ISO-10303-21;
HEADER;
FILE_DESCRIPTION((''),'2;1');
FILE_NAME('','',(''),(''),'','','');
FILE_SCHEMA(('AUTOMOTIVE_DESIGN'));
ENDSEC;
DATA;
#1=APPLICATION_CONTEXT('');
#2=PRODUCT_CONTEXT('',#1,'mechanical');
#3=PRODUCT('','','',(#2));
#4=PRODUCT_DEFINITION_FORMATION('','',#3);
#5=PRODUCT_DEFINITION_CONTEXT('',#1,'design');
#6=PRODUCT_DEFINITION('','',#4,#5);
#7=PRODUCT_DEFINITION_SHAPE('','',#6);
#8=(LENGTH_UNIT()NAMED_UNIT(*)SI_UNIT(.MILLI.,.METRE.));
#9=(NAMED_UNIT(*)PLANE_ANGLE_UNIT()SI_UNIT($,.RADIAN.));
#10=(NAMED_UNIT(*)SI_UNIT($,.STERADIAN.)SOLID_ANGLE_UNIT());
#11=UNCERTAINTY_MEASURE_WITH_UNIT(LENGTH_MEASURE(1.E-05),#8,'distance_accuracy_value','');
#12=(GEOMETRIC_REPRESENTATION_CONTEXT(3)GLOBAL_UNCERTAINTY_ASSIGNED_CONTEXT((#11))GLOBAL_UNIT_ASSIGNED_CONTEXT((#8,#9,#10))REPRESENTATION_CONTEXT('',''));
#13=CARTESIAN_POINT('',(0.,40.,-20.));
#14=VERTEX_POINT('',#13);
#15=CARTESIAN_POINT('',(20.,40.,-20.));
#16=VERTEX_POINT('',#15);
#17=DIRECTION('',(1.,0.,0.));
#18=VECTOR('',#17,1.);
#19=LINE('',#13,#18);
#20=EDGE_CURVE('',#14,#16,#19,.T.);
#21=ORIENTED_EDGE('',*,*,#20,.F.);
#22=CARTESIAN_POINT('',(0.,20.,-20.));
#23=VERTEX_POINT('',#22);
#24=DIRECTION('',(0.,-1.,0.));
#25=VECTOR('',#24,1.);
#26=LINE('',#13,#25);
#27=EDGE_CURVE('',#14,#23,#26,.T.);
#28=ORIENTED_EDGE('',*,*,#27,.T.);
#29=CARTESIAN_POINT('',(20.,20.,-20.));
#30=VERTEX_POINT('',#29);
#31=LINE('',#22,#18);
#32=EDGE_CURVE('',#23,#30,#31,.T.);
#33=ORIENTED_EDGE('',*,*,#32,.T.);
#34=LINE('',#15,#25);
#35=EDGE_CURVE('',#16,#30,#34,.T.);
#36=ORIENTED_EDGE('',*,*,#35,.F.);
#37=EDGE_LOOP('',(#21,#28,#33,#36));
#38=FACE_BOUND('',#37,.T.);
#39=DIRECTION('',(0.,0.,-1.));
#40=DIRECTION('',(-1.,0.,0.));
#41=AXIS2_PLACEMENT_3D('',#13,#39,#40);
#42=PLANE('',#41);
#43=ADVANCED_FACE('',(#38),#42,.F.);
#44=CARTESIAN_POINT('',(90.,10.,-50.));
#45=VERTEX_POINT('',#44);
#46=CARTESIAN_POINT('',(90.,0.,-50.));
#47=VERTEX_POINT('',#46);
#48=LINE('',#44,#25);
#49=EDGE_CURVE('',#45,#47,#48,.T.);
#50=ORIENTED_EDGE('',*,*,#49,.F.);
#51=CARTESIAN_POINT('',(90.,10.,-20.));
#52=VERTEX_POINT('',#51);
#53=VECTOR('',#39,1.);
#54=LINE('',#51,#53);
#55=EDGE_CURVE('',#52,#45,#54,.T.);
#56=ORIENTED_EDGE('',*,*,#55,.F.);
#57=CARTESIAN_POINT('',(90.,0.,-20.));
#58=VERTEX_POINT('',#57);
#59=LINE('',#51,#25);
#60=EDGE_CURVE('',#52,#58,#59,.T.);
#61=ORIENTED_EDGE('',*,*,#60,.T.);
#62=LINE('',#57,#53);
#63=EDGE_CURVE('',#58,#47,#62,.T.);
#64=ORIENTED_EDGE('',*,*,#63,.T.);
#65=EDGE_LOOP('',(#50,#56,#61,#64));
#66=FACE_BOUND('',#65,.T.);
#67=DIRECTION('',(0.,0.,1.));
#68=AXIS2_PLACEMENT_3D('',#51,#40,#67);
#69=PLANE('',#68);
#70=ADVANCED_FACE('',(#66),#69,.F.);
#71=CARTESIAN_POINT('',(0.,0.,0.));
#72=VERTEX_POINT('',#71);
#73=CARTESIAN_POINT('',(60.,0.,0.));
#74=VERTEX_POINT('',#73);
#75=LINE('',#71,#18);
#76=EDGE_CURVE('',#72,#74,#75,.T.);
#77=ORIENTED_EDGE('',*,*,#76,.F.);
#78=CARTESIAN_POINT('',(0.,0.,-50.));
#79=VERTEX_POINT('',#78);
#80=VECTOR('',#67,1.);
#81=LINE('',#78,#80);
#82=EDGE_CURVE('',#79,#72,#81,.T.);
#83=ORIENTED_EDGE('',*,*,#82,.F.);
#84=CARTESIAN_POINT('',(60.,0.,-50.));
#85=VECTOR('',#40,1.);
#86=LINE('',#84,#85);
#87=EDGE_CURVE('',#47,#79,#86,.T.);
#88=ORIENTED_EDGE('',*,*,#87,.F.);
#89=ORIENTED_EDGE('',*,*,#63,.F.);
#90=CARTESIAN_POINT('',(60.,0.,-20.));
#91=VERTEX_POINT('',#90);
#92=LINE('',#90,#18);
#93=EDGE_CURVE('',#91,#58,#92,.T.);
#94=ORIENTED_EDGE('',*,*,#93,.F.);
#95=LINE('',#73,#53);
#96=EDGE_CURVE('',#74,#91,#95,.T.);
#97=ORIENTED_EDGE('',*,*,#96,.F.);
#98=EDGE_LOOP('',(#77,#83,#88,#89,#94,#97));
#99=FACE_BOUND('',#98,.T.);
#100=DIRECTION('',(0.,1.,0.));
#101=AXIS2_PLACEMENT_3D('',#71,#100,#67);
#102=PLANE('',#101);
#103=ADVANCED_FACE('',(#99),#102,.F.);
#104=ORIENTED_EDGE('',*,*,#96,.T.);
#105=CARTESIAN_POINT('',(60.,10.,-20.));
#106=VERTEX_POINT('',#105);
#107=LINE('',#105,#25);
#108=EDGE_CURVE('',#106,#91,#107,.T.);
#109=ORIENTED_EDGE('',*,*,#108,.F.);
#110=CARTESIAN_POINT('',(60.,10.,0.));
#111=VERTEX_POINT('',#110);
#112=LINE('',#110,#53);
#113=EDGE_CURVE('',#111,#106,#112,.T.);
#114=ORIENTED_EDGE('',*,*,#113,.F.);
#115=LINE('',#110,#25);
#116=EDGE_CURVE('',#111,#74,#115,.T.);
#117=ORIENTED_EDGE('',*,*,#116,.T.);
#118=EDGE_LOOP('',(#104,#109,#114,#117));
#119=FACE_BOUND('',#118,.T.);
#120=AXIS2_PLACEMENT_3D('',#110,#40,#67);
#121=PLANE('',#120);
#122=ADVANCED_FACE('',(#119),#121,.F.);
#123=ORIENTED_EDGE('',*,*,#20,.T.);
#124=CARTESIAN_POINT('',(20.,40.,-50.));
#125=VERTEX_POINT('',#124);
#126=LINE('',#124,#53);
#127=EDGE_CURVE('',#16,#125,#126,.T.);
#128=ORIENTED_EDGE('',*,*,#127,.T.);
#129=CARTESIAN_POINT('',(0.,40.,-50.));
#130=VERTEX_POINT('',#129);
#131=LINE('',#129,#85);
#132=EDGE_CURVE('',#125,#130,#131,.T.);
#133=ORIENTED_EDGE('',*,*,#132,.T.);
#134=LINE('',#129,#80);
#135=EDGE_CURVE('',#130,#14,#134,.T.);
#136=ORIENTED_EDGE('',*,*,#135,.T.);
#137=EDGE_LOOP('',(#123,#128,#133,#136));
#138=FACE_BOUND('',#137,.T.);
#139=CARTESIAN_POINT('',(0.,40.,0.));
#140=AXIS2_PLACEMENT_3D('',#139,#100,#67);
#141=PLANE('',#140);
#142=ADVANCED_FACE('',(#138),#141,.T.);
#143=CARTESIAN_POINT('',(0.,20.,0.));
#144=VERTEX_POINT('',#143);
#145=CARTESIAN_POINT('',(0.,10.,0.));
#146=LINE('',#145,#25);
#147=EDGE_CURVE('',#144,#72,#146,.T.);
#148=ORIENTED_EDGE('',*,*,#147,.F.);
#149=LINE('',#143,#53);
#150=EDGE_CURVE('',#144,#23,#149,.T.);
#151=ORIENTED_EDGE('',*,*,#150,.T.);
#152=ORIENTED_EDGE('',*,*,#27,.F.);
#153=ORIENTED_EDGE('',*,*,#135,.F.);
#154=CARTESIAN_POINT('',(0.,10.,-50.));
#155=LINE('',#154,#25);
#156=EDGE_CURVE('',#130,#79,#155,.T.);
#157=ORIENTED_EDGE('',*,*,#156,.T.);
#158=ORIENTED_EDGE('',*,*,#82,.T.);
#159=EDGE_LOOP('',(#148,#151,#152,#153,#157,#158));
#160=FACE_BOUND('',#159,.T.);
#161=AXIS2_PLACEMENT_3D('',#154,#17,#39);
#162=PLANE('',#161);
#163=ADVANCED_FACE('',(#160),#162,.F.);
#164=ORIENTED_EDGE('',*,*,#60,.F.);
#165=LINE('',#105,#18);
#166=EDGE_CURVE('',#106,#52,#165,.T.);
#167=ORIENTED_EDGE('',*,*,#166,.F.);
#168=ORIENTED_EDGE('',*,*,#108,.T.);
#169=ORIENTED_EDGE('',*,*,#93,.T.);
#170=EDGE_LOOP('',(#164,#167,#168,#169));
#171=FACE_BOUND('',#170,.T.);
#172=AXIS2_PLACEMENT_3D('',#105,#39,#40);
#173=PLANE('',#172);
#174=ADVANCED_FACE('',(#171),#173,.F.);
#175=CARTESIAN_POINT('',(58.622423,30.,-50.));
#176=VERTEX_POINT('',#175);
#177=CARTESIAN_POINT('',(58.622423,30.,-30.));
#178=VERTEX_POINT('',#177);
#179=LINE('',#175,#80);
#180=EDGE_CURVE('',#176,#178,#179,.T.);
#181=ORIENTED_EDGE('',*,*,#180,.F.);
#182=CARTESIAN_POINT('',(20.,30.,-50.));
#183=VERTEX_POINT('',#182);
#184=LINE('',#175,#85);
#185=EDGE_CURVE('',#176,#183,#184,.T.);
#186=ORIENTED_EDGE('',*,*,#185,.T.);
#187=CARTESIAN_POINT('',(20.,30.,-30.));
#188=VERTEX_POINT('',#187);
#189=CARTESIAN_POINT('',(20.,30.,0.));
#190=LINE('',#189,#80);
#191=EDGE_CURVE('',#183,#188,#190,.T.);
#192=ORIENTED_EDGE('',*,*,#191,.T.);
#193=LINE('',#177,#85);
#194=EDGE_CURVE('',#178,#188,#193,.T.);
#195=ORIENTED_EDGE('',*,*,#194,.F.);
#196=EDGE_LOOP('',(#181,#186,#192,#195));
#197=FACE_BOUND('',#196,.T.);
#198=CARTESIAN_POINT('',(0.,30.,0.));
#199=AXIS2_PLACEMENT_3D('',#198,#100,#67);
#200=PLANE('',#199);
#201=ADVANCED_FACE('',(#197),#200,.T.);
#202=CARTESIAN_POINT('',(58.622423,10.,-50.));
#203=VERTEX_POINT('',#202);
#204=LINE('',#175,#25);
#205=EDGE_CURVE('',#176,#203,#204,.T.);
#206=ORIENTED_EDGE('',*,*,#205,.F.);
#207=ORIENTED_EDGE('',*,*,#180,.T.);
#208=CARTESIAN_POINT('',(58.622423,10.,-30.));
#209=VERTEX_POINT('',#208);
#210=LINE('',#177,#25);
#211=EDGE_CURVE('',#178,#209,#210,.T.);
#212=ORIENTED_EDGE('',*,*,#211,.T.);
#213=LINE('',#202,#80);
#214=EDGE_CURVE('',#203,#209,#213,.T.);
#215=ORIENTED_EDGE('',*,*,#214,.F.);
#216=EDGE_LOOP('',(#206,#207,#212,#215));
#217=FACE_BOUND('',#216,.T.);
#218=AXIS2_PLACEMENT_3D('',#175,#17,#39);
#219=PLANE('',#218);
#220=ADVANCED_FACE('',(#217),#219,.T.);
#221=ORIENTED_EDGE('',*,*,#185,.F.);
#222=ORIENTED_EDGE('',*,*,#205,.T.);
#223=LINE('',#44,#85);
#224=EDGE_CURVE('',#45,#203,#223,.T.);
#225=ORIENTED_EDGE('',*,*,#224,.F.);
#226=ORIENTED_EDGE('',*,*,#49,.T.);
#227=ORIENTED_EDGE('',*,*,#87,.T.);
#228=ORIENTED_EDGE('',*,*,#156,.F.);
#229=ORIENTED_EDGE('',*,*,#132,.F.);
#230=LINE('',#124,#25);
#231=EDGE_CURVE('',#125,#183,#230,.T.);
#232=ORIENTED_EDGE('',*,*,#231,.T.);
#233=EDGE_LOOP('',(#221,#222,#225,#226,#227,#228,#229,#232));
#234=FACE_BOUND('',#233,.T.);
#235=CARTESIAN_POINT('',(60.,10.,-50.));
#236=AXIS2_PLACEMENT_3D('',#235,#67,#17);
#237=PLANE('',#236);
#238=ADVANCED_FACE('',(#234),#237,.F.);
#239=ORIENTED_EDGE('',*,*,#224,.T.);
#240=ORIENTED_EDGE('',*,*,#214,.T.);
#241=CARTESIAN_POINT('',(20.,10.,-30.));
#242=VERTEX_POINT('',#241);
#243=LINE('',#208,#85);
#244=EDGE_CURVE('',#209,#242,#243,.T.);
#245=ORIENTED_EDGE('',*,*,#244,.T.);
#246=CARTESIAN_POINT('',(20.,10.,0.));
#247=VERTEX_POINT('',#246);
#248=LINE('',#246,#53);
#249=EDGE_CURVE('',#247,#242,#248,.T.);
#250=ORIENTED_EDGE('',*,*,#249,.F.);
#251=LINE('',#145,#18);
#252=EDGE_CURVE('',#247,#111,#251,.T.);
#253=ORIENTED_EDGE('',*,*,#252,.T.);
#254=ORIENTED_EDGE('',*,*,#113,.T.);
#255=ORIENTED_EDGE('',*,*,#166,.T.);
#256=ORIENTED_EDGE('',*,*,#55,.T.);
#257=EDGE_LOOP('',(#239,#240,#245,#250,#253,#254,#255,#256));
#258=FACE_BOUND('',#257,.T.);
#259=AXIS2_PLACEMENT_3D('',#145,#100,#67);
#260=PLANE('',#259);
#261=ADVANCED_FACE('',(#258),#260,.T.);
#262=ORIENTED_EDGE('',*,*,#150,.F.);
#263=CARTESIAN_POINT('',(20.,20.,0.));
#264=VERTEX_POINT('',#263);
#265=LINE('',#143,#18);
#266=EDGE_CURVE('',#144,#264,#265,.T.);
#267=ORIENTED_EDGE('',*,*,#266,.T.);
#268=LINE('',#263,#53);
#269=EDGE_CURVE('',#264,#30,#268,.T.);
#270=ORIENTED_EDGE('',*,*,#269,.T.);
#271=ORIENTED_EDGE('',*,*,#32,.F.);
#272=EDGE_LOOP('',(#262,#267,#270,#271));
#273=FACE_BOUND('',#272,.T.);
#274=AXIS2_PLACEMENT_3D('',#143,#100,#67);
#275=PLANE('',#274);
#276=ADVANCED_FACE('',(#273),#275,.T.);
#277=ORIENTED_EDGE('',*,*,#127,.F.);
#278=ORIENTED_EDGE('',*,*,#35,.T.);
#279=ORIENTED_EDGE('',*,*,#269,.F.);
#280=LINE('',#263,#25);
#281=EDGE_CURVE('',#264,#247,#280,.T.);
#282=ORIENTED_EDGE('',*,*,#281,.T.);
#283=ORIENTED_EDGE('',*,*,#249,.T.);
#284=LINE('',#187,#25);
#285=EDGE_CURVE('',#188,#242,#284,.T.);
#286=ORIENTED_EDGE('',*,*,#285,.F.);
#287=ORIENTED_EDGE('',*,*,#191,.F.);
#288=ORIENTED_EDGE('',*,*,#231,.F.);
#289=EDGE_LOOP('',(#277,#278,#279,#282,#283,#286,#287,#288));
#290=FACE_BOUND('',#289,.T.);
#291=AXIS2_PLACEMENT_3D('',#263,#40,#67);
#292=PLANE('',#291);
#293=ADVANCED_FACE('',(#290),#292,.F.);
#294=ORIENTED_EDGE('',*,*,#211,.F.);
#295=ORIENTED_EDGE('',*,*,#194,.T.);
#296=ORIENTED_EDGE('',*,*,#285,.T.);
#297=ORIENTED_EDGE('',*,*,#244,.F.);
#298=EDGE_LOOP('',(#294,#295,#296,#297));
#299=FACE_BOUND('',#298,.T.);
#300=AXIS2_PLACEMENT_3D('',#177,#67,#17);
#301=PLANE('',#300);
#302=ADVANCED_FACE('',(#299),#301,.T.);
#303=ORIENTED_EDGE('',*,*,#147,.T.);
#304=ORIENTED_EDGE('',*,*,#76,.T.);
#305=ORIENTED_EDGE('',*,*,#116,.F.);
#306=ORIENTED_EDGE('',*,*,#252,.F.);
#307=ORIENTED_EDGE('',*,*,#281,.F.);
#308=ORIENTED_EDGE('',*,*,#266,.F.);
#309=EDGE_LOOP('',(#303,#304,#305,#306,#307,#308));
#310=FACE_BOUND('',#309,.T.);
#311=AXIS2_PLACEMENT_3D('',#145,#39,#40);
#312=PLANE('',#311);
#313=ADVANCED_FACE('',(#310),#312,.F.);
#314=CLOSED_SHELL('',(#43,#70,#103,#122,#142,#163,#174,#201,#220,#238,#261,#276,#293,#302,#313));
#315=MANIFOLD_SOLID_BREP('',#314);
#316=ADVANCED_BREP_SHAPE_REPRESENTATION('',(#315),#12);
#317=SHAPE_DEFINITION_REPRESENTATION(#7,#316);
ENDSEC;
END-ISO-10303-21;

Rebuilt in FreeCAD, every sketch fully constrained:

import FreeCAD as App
import Part
import Sketcher

V = App.Vector
Q = App.Units.Quantity

doc = App.newDocument("Part")
body = doc.addObject("PartDesign::Body", "Body")

sketch1 = body.newObject("Sketcher::SketchObject", "Sketch")
sketch1.AttachmentSupport = (doc.getObject("XZ_Plane"), [""])
sketch1.MapMode = "FlatFace"
sketch1.addGeometry(Part.LineSegment(V(0, 0, 0), V(60, 0, 0)), False)
sketch1.addGeometry(Part.LineSegment(V(60, 0, 0), V(60, -20, 0)), False)
sketch1.addGeometry(Part.LineSegment(V(60, -20, 0), V(90, -20, 0)), False)
sketch1.addGeometry(Part.LineSegment(V(90, -20, 0), V(90, -50, 0)), False)
sketch1.addGeometry(Part.LineSegment(V(90, -50, 0), V(0, -50, 0)), False)
sketch1.addGeometry(Part.LineSegment(V(0, -50, 0), V(0, 0, 0)), False)
sketch1.addConstraint(Sketcher.Constraint("Coincident", 0, 2, 1, 1))
sketch1.addConstraint(Sketcher.Constraint("Coincident", 1, 2, 2, 1))
sketch1.addConstraint(Sketcher.Constraint("Coincident", 2, 2, 3, 1))
sketch1.addConstraint(Sketcher.Constraint("Coincident", 3, 2, 4, 1))
sketch1.addConstraint(Sketcher.Constraint("Coincident", 4, 2, 5, 1))
sketch1.addConstraint(Sketcher.Constraint("Coincident", 5, 2, 0, 1))
sketch1.addConstraint(Sketcher.Constraint("Horizontal", 0))
sketch1.addConstraint(Sketcher.Constraint("Vertical", 1))
sketch1.addConstraint(Sketcher.Constraint("Horizontal", 2))
sketch1.addConstraint(Sketcher.Constraint("Vertical", 3))
sketch1.addConstraint(Sketcher.Constraint("Horizontal", 4))
sketch1.addConstraint(Sketcher.Constraint("Vertical", 5))
sketch1.addConstraint(Sketcher.Constraint("Coincident", 5, 2, -1, 1))
sketch1.addConstraint(Sketcher.Constraint("Equal", 2, 3))
sketch1.addConstraint(Sketcher.Constraint("DistanceX", 0, 1, 0, 2, Q("60 mm")))
sketch1.addConstraint(Sketcher.Constraint("DistanceX", 2, 1, 2, 2, Q("30 mm")))
sketch1.addConstraint(Sketcher.Constraint("DistanceY", 1, 2, 1, 1, Q("20 mm")))
pad1 = body.newObject("PartDesign::Pad", "Pad")
pad1.Profile = sketch1
pad1.Length = 10
pad1.Reversed = True

sketch2 = body.newObject("Sketcher::SketchObject", "Sketch001")
sketch2.AttachmentSupport = (doc.getObject("XZ_Plane"), [""])
sketch2.MapMode = "FlatFace"
sketch2.AttachmentOffset = App.Placement(V(0, 0, -10), App.Rotation())
sketch2.addGeometry(Part.LineSegment(V(0, -20, 0), V(0, 0, 0)), False)
sketch2.addGeometry(Part.LineSegment(V(0, 0, 0), V(20, 0, 0)), False)
sketch2.addGeometry(Part.LineSegment(V(20, 0, 0), V(20, -20, 0)), False)
sketch2.addGeometry(Part.LineSegment(V(20, -20, 0), V(0, -20, 0)), False)
sketch2.addConstraint(Sketcher.Constraint("Coincident", 0, 2, 1, 1))
sketch2.addConstraint(Sketcher.Constraint("Coincident", 1, 2, 2, 1))
sketch2.addConstraint(Sketcher.Constraint("Coincident", 2, 2, 3, 1))
sketch2.addConstraint(Sketcher.Constraint("Coincident", 3, 2, 0, 1))
sketch2.addConstraint(Sketcher.Constraint("Vertical", 0))
sketch2.addConstraint(Sketcher.Constraint("Horizontal", 1))
sketch2.addConstraint(Sketcher.Constraint("Vertical", 2))
sketch2.addConstraint(Sketcher.Constraint("Horizontal", 3))
sketch2.addConstraint(Sketcher.Constraint("Coincident", 0, 2, -1, 1))
sketch2.addConstraint(Sketcher.Constraint("Equal", 3, 0))
sketch2.addConstraint(Sketcher.Constraint("DistanceX", 1, 1, 1, 2, Q("20 mm")))
pad2 = body.newObject("PartDesign::Pad", "Pad001")
pad2.Profile = sketch2
pad2.Length = 10
pad2.Reversed = True

sketch3 = body.newObject("Sketcher::SketchObject", "Sketch002")
sketch3.AttachmentSupport = (doc.getObject("XZ_Plane"), [""])
sketch3.MapMode = "FlatFace"
sketch3.AttachmentOffset = App.Placement(V(0, 0, -10), App.Rotation())
sketch3.addGeometry(Part.LineSegment(V(19, -50, 0), V(19, -30, 0)), False)
sketch3.addGeometry(Part.LineSegment(V(19, -30, 0), V(59, -30, 0)), False)
sketch3.addGeometry(Part.LineSegment(V(59, -30, 0), V(59, -50, 0)), False)
sketch3.addGeometry(Part.LineSegment(V(59, -50, 0), V(19, -50, 0)), False)
sketch3.addConstraint(Sketcher.Constraint("Coincident", 0, 2, 1, 1))
sketch3.addConstraint(Sketcher.Constraint("Coincident", 1, 2, 2, 1))
sketch3.addConstraint(Sketcher.Constraint("Coincident", 2, 2, 3, 1))
sketch3.addConstraint(Sketcher.Constraint("Coincident", 3, 2, 0, 1))
sketch3.addConstraint(Sketcher.Constraint("Vertical", 0))
sketch3.addConstraint(Sketcher.Constraint("Horizontal", 1))
sketch3.addConstraint(Sketcher.Constraint("Vertical", 2))
sketch3.addConstraint(Sketcher.Constraint("Horizontal", 3))
sketch3.addConstraint(Sketcher.Constraint("DistanceX", 1, 1, 1, 2, Q("40 mm")))
sketch3.addConstraint(Sketcher.Constraint("DistanceY", 0, 1, 0, 2, Q("20 mm")))
sketch3.addConstraint(Sketcher.Constraint("DistanceY", 0, 2, -1, 1, Q("30 mm")))
sketch3.addConstraint(Sketcher.Constraint("DistanceX", -1, 1, 0, 2, Q("18.622423 mm")))
pad3 = body.newObject("PartDesign::Pad", "Pad002")
pad3.Profile = sketch3
pad3.Length = 20
pad3.Reversed = True

sketch4 = body.newObject("Sketcher::SketchObject", "Sketch003")
sketch4.AttachmentSupport = (doc.getObject("XZ_Plane"), [""])
sketch4.MapMode = "FlatFace"
sketch4.AttachmentOffset = App.Placement(V(0, 0, -10), App.Rotation())
sketch4.addGeometry(Part.LineSegment(V(0, -50, 0), V(0, -20, 0)), False)
sketch4.addGeometry(Part.LineSegment(V(0, -20, 0), V(20, -20, 0)), False)
sketch4.addGeometry(Part.LineSegment(V(20, -20, 0), V(20, -50, 0)), False)
sketch4.addGeometry(Part.LineSegment(V(20, -50, 0), V(0, -50, 0)), False)
sketch4.addConstraint(Sketcher.Constraint("Coincident", 0, 2, 1, 1))
sketch4.addConstraint(Sketcher.Constraint("Coincident", 1, 2, 2, 1))
sketch4.addConstraint(Sketcher.Constraint("Coincident", 2, 2, 3, 1))
sketch4.addConstraint(Sketcher.Constraint("Coincident", 3, 2, 0, 1))
sketch4.addConstraint(Sketcher.Constraint("Vertical", 0))
sketch4.addConstraint(Sketcher.Constraint("Horizontal", 1))
sketch4.addConstraint(Sketcher.Constraint("Vertical", 2))
sketch4.addConstraint(Sketcher.Constraint("Horizontal", 3))
sketch4.addConstraint(Sketcher.Constraint("PointOnObject", 0, 2, -2))
sketch4.addConstraint(Sketcher.Constraint("DistanceX", 1, 1, 1, 2, Q("20 mm")))
sketch4.addConstraint(Sketcher.Constraint("DistanceY", 0, 1, 0, 2, Q("30 mm")))
sketch4.addConstraint(Sketcher.Constraint("DistanceY", 0, 2, -1, 1, Q("20 mm")))
pad4 = body.newObject("PartDesign::Pad", "Pad003")
pad4.Profile = sketch4
pad4.Length = 30
pad4.Reversed = True

doc.recompute()
